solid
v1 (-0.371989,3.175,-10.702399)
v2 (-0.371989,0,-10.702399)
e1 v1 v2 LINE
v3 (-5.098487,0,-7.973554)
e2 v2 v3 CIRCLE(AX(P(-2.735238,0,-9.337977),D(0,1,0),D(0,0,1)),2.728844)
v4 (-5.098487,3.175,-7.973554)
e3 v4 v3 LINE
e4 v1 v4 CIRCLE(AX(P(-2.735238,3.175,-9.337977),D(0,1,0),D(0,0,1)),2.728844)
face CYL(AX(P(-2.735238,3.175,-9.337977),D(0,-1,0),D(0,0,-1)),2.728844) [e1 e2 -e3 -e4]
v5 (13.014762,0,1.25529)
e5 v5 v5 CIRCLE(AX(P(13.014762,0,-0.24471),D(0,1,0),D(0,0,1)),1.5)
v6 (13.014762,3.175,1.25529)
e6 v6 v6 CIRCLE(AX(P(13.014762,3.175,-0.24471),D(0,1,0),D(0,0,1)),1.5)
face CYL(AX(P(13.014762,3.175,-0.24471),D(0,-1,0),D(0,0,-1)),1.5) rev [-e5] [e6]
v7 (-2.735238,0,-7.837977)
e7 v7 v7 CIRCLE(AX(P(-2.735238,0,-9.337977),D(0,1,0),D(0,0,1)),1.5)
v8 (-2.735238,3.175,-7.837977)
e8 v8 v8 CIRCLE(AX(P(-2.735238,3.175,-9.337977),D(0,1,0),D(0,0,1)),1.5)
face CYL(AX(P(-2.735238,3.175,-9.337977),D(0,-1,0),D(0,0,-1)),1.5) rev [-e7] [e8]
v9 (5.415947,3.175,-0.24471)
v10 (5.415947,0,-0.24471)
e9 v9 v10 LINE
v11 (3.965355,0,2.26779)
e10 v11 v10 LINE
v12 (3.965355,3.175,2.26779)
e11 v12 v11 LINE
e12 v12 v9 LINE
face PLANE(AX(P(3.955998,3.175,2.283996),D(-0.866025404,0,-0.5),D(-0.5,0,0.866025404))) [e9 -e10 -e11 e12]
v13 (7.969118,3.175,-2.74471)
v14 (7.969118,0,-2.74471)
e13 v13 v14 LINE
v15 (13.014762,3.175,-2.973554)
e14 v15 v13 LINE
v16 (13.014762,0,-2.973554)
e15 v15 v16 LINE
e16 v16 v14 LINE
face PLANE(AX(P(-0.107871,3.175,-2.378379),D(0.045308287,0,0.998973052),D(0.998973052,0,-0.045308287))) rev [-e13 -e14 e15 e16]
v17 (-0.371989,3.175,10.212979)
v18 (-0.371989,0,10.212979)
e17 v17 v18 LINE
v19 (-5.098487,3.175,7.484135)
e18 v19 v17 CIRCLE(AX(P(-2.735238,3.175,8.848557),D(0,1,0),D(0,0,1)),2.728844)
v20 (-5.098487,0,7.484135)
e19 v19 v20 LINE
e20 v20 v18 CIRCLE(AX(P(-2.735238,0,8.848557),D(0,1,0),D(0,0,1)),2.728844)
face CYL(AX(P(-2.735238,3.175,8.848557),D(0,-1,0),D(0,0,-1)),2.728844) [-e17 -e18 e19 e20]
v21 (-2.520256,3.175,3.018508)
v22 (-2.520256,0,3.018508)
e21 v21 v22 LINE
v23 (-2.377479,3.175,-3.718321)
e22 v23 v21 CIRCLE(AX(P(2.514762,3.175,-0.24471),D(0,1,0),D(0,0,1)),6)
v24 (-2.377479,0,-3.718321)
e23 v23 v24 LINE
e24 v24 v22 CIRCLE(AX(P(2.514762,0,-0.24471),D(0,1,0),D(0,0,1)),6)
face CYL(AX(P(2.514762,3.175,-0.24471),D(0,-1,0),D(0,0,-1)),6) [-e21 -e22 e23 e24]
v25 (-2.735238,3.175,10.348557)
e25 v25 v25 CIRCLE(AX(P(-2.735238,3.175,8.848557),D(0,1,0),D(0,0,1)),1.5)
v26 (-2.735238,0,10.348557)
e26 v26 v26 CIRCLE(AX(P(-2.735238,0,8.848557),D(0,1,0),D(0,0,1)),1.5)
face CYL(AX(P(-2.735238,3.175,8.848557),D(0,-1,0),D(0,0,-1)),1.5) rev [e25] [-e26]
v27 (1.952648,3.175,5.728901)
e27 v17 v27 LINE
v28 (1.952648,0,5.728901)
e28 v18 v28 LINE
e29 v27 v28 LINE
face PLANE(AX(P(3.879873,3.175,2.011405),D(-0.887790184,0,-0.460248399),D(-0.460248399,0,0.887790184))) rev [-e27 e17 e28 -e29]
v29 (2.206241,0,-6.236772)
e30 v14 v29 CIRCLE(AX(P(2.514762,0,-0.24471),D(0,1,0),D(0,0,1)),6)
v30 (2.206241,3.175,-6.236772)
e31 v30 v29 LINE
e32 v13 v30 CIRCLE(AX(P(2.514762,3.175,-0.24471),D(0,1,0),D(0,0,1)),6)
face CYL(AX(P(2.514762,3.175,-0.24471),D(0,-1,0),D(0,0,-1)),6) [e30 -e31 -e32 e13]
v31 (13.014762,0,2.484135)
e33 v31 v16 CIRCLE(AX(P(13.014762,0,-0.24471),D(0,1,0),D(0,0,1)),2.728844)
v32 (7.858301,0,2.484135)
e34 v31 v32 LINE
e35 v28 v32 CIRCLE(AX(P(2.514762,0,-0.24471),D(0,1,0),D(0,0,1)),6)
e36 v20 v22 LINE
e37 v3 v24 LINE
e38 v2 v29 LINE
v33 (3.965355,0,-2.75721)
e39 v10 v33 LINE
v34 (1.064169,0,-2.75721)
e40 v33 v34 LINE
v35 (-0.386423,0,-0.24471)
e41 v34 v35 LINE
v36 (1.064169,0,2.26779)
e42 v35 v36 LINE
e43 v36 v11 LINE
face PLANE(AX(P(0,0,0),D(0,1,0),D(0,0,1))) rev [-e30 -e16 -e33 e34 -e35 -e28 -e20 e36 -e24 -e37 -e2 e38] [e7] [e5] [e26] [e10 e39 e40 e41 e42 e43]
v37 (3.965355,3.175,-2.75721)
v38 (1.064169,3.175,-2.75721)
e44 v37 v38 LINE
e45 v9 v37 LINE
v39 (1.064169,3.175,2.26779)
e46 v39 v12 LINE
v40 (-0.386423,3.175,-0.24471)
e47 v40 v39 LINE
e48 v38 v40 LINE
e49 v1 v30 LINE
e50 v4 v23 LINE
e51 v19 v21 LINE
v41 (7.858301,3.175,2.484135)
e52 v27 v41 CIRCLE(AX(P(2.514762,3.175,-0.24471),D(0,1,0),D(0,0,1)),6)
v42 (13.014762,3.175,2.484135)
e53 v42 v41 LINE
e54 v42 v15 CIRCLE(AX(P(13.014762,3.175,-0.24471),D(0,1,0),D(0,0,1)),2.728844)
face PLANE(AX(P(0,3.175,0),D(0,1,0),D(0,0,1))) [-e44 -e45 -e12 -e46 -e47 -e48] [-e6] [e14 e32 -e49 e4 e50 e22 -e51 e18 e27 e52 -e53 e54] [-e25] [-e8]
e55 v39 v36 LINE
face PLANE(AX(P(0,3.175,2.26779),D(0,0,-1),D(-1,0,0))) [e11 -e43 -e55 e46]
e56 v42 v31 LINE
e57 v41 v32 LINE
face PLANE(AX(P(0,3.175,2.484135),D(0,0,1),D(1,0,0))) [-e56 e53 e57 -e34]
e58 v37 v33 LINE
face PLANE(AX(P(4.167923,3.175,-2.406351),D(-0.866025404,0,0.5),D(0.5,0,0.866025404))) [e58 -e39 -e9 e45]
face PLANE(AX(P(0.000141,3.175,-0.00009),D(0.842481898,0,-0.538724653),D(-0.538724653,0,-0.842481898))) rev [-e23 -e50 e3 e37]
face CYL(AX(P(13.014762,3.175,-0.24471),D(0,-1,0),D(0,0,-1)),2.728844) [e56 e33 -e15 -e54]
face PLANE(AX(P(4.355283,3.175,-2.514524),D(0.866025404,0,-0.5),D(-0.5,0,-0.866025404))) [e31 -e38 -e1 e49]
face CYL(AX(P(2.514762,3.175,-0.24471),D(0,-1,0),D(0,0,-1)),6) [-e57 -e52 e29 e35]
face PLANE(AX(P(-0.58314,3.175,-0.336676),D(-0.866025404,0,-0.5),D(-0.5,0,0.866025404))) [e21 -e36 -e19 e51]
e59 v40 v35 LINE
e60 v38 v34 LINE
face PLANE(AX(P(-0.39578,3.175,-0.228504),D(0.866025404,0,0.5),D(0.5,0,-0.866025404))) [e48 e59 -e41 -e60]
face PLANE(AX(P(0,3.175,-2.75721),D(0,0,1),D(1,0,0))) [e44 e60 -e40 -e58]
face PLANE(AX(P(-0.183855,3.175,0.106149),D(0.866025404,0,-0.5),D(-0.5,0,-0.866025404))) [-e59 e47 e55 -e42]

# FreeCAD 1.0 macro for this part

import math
import FreeCAD as App
import Part
import Sketcher

V = App.Vector
Q = App.Units.Quantity

doc = App.newDocument("Part")
body = doc.addObject("PartDesign::Body", "Body")

sketch1 = doc.addObject("Sketcher::SketchObject", "Sketch")
body.addObject(sketch1)
sketch1.AttachmentSupport = (doc.XZ_Plane, [""])
sketch1.MapMode = "FlatFace"
sketch1.addGeometry(Part.LineSegment(V(7.9, 2.5, 0), V(13, 2.5, 0)), False)
sketch1.addGeometry(Part.ArcOfCircle(Part.Circle(V(13, -0.2, 0), V(0, 0, 1), 2.7), math.radians(-90), math.radians(90)), False)
sketch1.addGeometry(Part.LineSegment(V(13, -3, 0), V(8, -2.7, 0)), False)
sketch1.addGeometry(Part.ArcOfCircle(Part.Circle(V(2.5, -0.2, 0), V(0, 0, 1), 6), math.radians(-93), math.radians(-25)), False)
sketch1.addGeometry(Part.LineSegment(V(2.2, -6.2, 0), V(-0.4, -10.7, 0)), False)
sketch1.addGeometry(Part.ArcOfCircle(Part.Circle(V(-2.7, -9.3, 0), V(0, 0, 1), 2.7), math.radians(150), math.radians(330)), False)
sketch1.addGeometry(Part.LineSegment(V(-5.1, -8, 0), V(-2.4, -3.7, 0)), False)
sketch1.addGeometry(Part.ArcOfCircle(Part.Circle(V(2.5, -0.2, 0), V(0, 0, 1), 6), math.radians(147), math.radians(215)), False)
sketch1.addGeometry(Part.LineSegment(V(-2.5, 3, 0), V(-5.1, 7.5, 0)), False)
sketch1.addGeometry(Part.ArcOfCircle(Part.Circle(V(-2.7, 8.8, 0), V(0, 0, 1), 2.7), math.radians(30), math.radians(210)), False)
sketch1.addGeometry(Part.LineSegment(V(-0.4, 10.2, 0), V(2, 5.7, 0)), False)
sketch1.addGeometry(Part.ArcOfCircle(Part.Circle(V(2.5, -0.2, 0), V(0, 0, 1), 6), math.radians(27), math.radians(95)), False)
sketch1.addGeometry(Part.Circle(V(-2.7, 8.8, 0), V(0, 0, 1), 1.5), False)
sketch1.addGeometry(Part.LineSegment(V(1.1, -2.8, 0), V(4, -2.8, 0)), False)
sketch1.addGeometry(Part.LineSegment(V(4, -2.8, 0), V(5.4, -0.2, 0)), False)
sketch1.addGeometry(Part.LineSegment(V(5.4, -0.2, 0), V(4, 2.3, 0)), False)
sketch1.addGeometry(Part.LineSegment(V(4, 2.3, 0), V(1.1, 2.3, 0)), False)
sketch1.addGeometry(Part.LineSegment(V(1.1, 2.3, 0), V(-0.4, -0.2, 0)), False)
sketch1.addGeometry(Part.LineSegment(V(-0.4, -0.2, 0), V(1.1, -2.8, 0)), False)
sketch1.addGeometry(Part.Circle(V(-2.7, -9.3, 0), V(0, 0, 1), 1.5), False)
sketch1.addGeometry(Part.Circle(V(13, -0.2, 0), V(0, 0, 1), 1.5), False)
sketch1.addConstraint(Sketcher.Constraint("Tangent", 0, 2, 1, 2))
sketch1.addConstraint(Sketcher.Constraint("Coincident", 1, 1, 2, 1))
sketch1.addConstraint(Sketcher.Constraint("Coincident", 2, 2, 3, 2))
sketch1.addConstraint(Sketcher.Constraint("Coincident", 3, 1, 4, 1))
sketch1.addConstraint(Sketcher.Constraint("Tangent", 4, 2, 5, 2))
sketch1.addConstraint(Sketcher.Constraint("Coincident", 5, 1, 6, 1))
sketch1.addConstraint(Sketcher.Constraint("Coincident", 6, 2, 7, 2))
sketch1.addConstraint(Sketcher.Constraint("Coincident", 7, 1, 8, 1))
sketch1.addConstraint(Sketcher.Constraint("Tangent", 8, 2, 9, 2))
sketch1.addConstraint(Sketcher.Constraint("Coincident", 9, 1, 10, 1))
sketch1.addConstraint(Sketcher.Constraint("Coincident", 10, 2, 11, 2))
sketch1.addConstraint(Sketcher.Constraint("Coincident", 11, 1, 0, 1))
sketch1.addConstraint(Sketcher.Constraint("Coincident", 13, 2, 14, 1))
sketch1.addConstraint(Sketcher.Constraint("Coincident", 14, 2, 15, 1))
sketch1.addConstraint(Sketcher.Constraint("Coincident", 15, 2, 16, 1))
sketch1.addConstraint(Sketcher.Constraint("Coincident", 16, 2, 17, 1))
sketch1.addConstraint(Sketcher.Constraint("Coincident", 17, 2, 18, 1))
sketch1.addConstraint(Sketcher.Constraint("Coincident", 18, 2, 13, 1))
sketch1.addConstraint(Sketcher.Constraint("Horizontal", 0))
sketch1.addConstraint(Sketcher.Constraint("Horizontal", 13))
sketch1.addConstraint(Sketcher.Constraint("Horizontal", 16))
sketch1.addConstraint(Sketcher.Constraint("Coincident", 7, 3, 3, 3))
sketch1.addConstraint(Sketcher.Constraint("Coincident", 11, 3, 3, 3))
sketch1.addConstraint(Sketcher.Constraint("Coincident", 12, 3, 9, 3))
sketch1.addConstraint(Sketcher.Constraint("Coincident", 19, 3, 5, 3))
sketch1.addConstraint(Sketcher.Constraint("Coincident", 20, 3, 1, 3))
sketch1.addConstraint(Sketcher.Constraint("Equal", 1, 5))
sketch1.addConstraint(Sketcher.Constraint("Equal", 3, 7))
sketch1.addConstraint(Sketcher.Constraint("Equal", 5, 9))
sketch1.addConstraint(Sketcher.Constraint("Equal", 7, 11))
sketch1.addConstraint(Sketcher.Constraint("Equal", 12, 19))
sketch1.addConstraint(Sketcher.Constraint("Equal", 19, 20))
sketch1.addConstraint(Sketcher.Constraint("Parallel", 4, 14))
sketch1.addConstraint(Sketcher.Constraint("Parallel", 8, 15))
sketch1.addConstraint(Sketcher.Constraint("Parallel", 14, 17))
sketch1.addConstraint(Sketcher.Constraint("Parallel", 15, 18))
sketch1.addConstraint(Sketcher.Constraint("Horizontal", 1, 3, 3, 3))
sketch1.addConstraint(Sketcher.Constraint("Horizontal", 20, 3, 14, 2))
sketch1.addConstraint(Sketcher.Constraint("Horizontal", 14, 2, 17, 2))
sketch1.addConstraint(Sketcher.Constraint("Vertical", 5, 3, 9, 3))
sketch1.addConstraint(Sketcher.Constraint("Vertical", 0, 2, 1, 1))
sketch1.addConstraint(Sketcher.Constraint("Vertical", 5, 1, 8, 2))
sketch1.addConstraint(Sketcher.Constraint("Vertical", 4, 2, 9, 1))
sketch1.addConstraint(Sketcher.Constraint("Vertical", 13, 2, 15, 2))
sketch1.addConstraint(Sketcher.Constraint("Vertical", 16, 2, 18, 2))
sketch1.addConstraint(Sketcher.Constraint("Equal", 2, 6))
sketch1.addConstraint(Sketcher.Constraint("Equal", 4, 8))
sketch1.addConstraint(Sketcher.Constraint("Equal", 6, 10))
sketch1.addConstraint(Sketcher.Constraint("Diameter", 12, 3.0))
sketch1.addConstraint(Sketcher.Constraint("Radius", 3, 6.0))
sketch1.addConstraint(Sketcher.Constraint("Angle", 4, Q("-120 deg")))
sketch1.addConstraint(Sketcher.Constraint("DistanceX", 3, 3, 1, 3, 10.5))
sketch1.addConstraint(Sketcher.Constraint("DistanceY", 2, 2, 1, 3, 2.5))
sketch1.addConstraint(Sketcher.Constraint("DistanceX", 5, 3, 3, 3, 5.25))
sketch1.addConstraint(Sketcher.Constraint("Radius", 1, 2.728844))
sketch1.addConstraint(Sketcher.Constraint("DistanceY", 4, 2, -1, 1, 10.702399))
sketch1.addConstraint(Sketcher.Constraint("DistanceY", -1, 1, 10, 2, 5.728901))
sketch1.addConstraint(Sketcher.Constraint("DistanceX", -1, 1, 11, 1, 7.858301))
sketch1.addConstraint(Sketcher.Constraint("DistanceY", 13, 2, 3, 3, 2.5125))
sketch1.addConstraint(Sketcher.Constraint("DistanceX", 13, 1, 13, 2, 2.901185))
sketch1.addConstraint(Sketcher.Constraint("DistanceX", -1, 1, 16, 2, 1.064169))
pad1 = doc.addObject("PartDesign::Pad", "Pad")
body.addObject(pad1)
pad1.Profile = sketch1
pad1.Length = 3.175
pad1.Reversed = True

doc.recompute()
